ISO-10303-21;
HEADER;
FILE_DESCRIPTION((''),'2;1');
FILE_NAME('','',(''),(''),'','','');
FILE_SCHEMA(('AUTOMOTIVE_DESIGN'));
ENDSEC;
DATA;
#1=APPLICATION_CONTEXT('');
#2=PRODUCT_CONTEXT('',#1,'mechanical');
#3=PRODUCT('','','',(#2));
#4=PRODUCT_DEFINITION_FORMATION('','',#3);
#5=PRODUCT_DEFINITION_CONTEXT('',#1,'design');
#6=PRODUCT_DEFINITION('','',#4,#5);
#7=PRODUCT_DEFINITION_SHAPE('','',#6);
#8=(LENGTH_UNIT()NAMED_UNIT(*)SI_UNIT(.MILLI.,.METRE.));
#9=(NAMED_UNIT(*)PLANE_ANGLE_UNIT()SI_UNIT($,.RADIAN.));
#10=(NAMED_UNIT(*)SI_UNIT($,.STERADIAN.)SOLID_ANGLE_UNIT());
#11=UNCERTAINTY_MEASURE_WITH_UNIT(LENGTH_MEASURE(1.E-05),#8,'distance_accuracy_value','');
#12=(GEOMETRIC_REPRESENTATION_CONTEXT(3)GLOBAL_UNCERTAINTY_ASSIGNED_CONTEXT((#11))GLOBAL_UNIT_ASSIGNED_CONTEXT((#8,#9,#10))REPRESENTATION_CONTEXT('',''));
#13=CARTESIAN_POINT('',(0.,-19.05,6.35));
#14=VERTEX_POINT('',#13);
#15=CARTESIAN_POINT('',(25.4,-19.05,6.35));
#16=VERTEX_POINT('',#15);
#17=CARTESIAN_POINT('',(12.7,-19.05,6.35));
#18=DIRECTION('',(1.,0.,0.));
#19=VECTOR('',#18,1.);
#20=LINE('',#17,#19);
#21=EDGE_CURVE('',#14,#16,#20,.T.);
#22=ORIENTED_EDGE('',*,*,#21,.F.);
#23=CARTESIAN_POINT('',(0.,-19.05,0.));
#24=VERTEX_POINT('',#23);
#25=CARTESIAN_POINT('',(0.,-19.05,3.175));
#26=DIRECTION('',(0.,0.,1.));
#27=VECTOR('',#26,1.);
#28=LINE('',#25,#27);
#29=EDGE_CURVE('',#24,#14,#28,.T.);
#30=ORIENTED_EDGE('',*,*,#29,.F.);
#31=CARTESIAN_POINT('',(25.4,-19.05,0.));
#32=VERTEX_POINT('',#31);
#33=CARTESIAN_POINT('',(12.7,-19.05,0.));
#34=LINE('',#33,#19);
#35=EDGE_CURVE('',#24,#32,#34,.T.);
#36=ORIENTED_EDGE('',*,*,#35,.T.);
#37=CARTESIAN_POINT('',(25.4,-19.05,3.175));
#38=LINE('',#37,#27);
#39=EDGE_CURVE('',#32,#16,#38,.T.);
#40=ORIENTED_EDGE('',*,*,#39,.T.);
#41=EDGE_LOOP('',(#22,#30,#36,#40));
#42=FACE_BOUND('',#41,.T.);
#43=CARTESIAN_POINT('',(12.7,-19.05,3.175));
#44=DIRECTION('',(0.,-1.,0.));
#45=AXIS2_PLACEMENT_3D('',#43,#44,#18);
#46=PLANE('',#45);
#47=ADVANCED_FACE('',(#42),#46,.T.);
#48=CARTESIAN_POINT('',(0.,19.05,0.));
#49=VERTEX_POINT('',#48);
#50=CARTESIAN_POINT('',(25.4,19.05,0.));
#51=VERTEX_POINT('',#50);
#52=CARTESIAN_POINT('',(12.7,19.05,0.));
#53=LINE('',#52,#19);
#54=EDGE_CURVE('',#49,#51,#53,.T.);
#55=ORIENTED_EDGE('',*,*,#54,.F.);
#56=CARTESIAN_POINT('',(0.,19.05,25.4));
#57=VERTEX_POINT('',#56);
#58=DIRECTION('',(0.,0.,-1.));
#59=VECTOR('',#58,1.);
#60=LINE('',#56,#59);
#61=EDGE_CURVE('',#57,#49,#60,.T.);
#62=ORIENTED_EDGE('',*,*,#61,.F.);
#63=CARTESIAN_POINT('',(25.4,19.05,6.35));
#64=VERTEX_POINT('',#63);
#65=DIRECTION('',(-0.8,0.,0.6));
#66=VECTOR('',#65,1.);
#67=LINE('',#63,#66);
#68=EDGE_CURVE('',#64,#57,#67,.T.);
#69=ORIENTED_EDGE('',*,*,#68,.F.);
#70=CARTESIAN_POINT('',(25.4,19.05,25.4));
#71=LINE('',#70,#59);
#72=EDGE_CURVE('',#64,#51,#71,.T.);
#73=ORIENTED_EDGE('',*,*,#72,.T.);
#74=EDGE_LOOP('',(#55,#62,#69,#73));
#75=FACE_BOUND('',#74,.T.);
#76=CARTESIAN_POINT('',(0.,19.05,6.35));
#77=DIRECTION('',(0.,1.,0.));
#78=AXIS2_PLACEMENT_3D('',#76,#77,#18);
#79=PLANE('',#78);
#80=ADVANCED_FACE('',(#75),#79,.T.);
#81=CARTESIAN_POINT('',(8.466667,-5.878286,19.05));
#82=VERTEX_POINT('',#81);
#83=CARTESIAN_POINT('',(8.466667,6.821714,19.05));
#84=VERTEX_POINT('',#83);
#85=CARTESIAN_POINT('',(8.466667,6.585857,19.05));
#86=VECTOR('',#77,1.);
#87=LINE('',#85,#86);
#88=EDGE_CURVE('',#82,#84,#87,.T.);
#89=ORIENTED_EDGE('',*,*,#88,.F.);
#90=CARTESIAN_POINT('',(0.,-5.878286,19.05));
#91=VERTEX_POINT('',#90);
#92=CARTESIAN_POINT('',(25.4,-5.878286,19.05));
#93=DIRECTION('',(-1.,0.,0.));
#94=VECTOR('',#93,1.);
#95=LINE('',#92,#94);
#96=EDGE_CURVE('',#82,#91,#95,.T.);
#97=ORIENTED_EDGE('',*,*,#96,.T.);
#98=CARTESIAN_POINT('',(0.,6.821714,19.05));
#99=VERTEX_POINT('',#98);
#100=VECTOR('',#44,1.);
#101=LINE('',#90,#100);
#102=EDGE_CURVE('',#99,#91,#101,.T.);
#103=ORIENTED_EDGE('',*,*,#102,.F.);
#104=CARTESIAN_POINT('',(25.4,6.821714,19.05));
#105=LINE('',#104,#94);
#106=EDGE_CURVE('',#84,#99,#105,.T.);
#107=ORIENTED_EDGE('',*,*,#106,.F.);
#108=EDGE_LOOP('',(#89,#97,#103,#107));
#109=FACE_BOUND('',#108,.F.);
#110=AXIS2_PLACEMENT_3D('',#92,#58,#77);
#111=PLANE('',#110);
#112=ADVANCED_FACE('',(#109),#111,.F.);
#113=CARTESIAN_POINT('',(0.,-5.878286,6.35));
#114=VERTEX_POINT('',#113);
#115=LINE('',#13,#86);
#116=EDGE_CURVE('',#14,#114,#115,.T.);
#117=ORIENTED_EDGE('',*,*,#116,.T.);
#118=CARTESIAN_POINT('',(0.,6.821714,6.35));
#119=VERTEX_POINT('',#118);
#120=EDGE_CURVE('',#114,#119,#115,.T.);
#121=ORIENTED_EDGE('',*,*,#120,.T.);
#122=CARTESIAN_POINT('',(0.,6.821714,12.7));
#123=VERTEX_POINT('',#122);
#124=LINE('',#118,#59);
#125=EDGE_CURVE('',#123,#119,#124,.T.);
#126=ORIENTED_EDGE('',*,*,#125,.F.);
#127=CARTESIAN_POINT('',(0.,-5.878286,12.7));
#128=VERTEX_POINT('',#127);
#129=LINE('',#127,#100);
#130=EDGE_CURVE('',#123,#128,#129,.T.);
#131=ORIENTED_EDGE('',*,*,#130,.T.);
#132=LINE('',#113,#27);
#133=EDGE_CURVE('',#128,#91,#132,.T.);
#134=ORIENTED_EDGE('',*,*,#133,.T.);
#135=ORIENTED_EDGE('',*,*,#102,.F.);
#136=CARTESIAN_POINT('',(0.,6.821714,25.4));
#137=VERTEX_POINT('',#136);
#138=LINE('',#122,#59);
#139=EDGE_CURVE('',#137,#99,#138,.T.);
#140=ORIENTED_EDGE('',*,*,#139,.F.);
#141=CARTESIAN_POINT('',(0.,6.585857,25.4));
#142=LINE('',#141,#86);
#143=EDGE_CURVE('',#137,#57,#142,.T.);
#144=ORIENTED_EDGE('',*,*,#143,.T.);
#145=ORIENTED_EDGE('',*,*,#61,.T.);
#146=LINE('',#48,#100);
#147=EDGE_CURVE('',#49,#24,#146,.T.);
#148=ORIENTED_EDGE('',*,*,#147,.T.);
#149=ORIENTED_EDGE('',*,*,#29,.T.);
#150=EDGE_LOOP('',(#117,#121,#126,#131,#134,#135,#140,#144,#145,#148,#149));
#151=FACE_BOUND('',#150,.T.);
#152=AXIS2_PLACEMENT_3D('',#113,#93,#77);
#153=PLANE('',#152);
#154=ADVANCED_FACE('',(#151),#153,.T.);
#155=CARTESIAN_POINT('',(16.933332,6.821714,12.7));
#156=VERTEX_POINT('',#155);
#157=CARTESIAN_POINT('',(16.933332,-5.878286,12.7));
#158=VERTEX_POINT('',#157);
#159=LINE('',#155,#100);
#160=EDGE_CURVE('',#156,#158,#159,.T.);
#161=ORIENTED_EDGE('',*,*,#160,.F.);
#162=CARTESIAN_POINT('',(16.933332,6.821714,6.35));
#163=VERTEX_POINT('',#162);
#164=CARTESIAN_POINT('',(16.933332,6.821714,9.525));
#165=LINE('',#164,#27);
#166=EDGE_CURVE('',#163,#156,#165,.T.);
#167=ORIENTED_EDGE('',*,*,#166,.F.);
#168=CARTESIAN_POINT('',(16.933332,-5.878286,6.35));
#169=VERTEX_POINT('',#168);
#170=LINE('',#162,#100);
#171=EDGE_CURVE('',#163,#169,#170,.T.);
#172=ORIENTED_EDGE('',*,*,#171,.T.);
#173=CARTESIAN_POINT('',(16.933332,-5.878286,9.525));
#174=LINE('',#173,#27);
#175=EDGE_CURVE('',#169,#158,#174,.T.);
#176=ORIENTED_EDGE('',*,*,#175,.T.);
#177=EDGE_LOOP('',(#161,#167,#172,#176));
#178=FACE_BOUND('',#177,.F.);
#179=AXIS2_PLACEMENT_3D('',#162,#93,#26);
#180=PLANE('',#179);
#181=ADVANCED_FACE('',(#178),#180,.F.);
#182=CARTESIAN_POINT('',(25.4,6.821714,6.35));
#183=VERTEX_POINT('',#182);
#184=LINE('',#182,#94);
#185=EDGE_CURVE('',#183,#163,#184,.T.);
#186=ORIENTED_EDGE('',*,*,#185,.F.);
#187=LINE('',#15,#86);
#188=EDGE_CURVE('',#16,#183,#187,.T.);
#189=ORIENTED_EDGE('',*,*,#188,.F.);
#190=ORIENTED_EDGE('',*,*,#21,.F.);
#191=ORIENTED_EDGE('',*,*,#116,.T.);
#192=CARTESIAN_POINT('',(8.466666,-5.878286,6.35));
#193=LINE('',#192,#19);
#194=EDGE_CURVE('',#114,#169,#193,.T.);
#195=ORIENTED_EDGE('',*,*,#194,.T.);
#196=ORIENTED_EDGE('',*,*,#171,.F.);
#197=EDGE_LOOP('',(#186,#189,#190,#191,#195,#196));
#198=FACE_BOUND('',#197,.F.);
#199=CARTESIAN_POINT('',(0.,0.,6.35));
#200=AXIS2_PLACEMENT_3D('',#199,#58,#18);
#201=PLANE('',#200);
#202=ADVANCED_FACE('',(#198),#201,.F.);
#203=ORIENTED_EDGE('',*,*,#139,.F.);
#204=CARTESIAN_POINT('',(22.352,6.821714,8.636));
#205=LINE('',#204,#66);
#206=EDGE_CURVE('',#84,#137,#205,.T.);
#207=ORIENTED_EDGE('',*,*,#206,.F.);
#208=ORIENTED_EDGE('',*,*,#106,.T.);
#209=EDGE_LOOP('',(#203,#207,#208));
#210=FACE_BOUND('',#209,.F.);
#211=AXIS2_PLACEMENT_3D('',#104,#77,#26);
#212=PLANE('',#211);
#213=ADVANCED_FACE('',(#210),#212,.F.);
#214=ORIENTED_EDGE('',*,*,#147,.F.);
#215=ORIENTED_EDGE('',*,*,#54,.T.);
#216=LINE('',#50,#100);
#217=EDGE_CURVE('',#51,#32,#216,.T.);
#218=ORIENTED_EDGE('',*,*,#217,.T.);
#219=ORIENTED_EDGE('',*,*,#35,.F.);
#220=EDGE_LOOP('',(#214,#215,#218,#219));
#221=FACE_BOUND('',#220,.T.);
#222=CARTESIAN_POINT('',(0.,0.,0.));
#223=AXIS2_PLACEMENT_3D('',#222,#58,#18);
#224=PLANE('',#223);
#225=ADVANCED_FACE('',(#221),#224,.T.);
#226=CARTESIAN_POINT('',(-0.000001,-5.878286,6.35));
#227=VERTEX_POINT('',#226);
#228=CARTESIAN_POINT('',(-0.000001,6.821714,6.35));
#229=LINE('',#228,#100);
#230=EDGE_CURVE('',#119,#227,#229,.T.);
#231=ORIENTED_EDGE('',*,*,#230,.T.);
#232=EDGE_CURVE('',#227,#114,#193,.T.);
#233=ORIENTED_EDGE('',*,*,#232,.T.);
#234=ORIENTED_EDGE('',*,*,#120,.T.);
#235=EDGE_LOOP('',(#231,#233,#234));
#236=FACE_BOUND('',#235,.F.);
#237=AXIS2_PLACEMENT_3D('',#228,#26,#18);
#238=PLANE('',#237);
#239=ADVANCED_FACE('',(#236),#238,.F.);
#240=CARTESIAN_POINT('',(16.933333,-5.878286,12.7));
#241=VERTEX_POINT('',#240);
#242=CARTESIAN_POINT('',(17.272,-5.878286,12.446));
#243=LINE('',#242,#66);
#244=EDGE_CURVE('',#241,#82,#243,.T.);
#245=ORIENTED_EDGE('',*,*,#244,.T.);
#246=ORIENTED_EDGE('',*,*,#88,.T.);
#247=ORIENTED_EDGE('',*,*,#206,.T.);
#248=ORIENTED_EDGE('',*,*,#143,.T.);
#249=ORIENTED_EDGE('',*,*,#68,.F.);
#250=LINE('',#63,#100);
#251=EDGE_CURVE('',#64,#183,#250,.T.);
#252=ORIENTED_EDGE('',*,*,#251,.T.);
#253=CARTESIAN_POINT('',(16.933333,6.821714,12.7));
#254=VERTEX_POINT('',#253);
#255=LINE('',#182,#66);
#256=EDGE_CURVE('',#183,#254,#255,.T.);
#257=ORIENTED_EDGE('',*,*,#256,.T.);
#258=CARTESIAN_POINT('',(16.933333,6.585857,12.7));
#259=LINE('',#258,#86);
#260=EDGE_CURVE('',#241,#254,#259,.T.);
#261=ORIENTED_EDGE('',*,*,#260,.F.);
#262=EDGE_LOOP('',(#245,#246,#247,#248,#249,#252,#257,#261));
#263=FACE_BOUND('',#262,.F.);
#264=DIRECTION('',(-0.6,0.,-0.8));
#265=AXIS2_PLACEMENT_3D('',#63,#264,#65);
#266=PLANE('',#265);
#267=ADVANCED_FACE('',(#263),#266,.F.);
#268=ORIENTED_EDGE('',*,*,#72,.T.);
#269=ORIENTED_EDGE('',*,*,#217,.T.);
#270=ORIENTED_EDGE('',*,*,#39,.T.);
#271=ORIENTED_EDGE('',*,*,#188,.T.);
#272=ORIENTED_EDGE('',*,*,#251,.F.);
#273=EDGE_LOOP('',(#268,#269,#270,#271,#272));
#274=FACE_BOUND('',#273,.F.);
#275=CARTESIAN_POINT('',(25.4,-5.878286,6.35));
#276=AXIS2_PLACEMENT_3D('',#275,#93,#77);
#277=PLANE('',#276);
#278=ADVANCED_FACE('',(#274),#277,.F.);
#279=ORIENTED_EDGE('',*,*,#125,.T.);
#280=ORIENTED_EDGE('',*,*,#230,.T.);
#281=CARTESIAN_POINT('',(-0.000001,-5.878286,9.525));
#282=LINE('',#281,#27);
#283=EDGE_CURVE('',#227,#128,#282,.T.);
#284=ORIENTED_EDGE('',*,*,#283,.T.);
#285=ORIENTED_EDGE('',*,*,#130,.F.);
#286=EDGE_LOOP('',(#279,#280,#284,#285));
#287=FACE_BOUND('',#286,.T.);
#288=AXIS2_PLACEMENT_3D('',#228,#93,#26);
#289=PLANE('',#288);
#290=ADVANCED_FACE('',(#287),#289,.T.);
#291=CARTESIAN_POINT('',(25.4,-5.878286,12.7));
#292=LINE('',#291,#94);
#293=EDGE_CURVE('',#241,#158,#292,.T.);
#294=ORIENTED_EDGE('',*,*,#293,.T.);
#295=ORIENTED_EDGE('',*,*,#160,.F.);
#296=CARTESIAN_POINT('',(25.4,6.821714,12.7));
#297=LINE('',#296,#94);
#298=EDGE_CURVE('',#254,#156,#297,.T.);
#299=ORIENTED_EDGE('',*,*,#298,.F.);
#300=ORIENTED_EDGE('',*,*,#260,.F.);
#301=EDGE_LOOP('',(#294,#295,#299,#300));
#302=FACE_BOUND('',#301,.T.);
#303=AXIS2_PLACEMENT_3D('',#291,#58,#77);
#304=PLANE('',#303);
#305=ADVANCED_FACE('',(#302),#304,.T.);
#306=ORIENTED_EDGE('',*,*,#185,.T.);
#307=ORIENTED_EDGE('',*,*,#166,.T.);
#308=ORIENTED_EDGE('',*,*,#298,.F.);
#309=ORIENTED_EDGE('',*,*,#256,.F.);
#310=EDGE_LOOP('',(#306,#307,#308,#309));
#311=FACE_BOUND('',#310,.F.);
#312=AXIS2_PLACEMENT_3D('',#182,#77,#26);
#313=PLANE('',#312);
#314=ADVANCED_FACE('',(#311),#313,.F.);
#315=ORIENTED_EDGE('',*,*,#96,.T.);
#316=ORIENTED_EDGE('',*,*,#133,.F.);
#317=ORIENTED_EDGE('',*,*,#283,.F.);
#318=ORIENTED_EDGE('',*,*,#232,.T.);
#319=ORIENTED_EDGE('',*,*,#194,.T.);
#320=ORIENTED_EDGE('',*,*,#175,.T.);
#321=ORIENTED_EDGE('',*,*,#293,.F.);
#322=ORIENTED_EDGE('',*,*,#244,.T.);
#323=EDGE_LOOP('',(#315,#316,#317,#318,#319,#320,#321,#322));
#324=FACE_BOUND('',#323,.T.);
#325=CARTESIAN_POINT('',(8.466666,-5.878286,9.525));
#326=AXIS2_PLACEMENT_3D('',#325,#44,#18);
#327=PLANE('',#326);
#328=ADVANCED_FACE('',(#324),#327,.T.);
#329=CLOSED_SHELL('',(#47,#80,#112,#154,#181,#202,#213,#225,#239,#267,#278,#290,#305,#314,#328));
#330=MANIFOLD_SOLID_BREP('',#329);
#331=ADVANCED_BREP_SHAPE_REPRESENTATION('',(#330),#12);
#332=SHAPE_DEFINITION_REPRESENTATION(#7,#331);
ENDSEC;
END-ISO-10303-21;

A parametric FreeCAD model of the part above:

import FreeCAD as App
import Part
import Sketcher
Q = App.Units.Quantity

doc = App.newDocument("Part")
params = doc.addObject("Spreadsheet::Sheet", "Params")
for row, (alias, value) in enumerate([
    ("sketch1_width", "1 in"),
    ("sketch1_height", "0.25 in"),
    ("pad1_length", "1.5 in"),
    ("sketch2_width", "1 in"),
    ("pad2_length", "0.75 in"),
    ("sketch3_width", "0.5 in"),
    ("sketch3_height", "0.25 in"),
    ("sketch4_width", "1 in"),
    ("sketch4_height", "0.75 in"),
    ("sketch5_height", "0.25 in"),
    ("pad3_length", "0.5 in"),
], start=1):
    params.set(f"A{row}", alias)
    params.set(f"B{row}", "=" + value)
    params.setAlias(f"B{row}", alias)

body = doc.addObject("PartDesign::Body", "Body")

sketch1 = body.newObject("Sketcher::SketchObject", "Sketch")
sketch1.AttachmentSupport = (doc.getObject("XZ_Plane"), [""])
sketch1.MapMode = "FlatFace"
sketch1.addGeometry([
    Part.LineSegment(App.Vector(0, 6, 0), App.Vector(0, 0, 0)),
    Part.LineSegment(App.Vector(0, 0, 0), App.Vector(25, 0, 0)),
    Part.LineSegment(App.Vector(25, 0, 0), App.Vector(25, 6, 0)),
    Part.LineSegment(App.Vector(25, 6, 0), App.Vector(0, 6, 0)),
], False)
sketch1.addConstraint([
    Sketcher.Constraint("Coincident", 0, 2, 1, 1),
    Sketcher.Constraint("Coincident", 1, 2, 2, 1),
    Sketcher.Constraint("Coincident", 2, 2, 3, 1),
    Sketcher.Constraint("Coincident", 3, 2, 0, 1),
    Sketcher.Constraint("Vertical", 0),
    Sketcher.Constraint("Horizontal", 1),
    Sketcher.Constraint("Vertical", 2),
    Sketcher.Constraint("Horizontal", 3),
    Sketcher.Constraint("Coincident", 0, 2, -1, 1),
    Sketcher.Constraint("DistanceX", 1, 1, 1, 2, Q("1 in")),
    Sketcher.Constraint("DistanceY", 0, 2, 0, 1, Q("0.25 in")),
])
sketch1.setExpression("Constraints[9]", "Params.sketch1_width")
sketch1.setExpression("Constraints[10]", "Params.sketch1_height")
pad1 = body.newObject("PartDesign::Pad", "Pad")
pad1.Profile = sketch1
pad1.setExpression("Length", "Params.pad1_length")
pad1.Midplane = True

sketch2 = body.newObject("Sketcher::SketchObject", "Sketch001")
sketch2.AttachmentSupport = (doc.getObject("XY_Plane"), [""])
sketch2.MapMode = "FlatFace"
sketch2.AttachmentOffset = App.Placement(App.Vector(0, 0, 0.25 * 25.4), App.Rotation())
sketch2.addGeometry([
    Part.LineSegment(App.Vector(0, 19, 0), App.Vector(0, -6, 0)),
    Part.LineSegment(App.Vector(0, -6, 0), App.Vector(25, -6, 0)),
    Part.LineSegment(App.Vector(25, -6, 0), App.Vector(25, 19, 0)),
    Part.LineSegment(App.Vector(25, 19, 0), App.Vector(0, 19, 0)),
], False)
sketch2.addConstraint([
    Sketcher.Constraint("Coincident", 0, 2, 1, 1),
    Sketcher.Constraint("Coincident", 1, 2, 2, 1),
    Sketcher.Constraint("Coincident", 2, 2, 3, 1),
    Sketcher.Constraint("Coincident", 3, 2, 0, 1),
    Sketcher.Constraint("Vertical", 0),
    Sketcher.Constraint("Horizontal", 1),
    Sketcher.Constraint("Vertical", 2),
    Sketcher.Constraint("Horizontal", 3),
    Sketcher.Constraint("PointOnObject", 0, 2, -2),
    Sketcher.Constraint("DistanceX", 1, 1, 1, 2, Q("1 in")),
    Sketcher.Constraint("DistanceY", -1, 1, 2, 2, Q("0.75 in")),
    Sketcher.Constraint("DistanceY", 0, 2, 0, 1, 24.928286),
])
sketch2.setExpression("Constraints[9]", "Params.sketch2_width")
pad2 = body.newObject("PartDesign::Pad", "Pad001")
pad2.Profile = sketch2
pad2.setExpression("Length", "Params.pad2_length")

sketch3 = body.newObject("Sketcher::SketchObject", "Sketch002")
sketch3.AttachmentSupport = (doc.getObject("YZ_Plane"), [""])
sketch3.MapMode = "FlatFace"
sketch3.AttachmentOffset = App.Placement(App.Vector(0, 0, 1 * 25.4), App.Rotation())
sketch3.addGeometry([
    Part.LineSegment(App.Vector(-6, 25, 0), App.Vector(-6, 19, 0)),
    Part.LineSegment(App.Vector(-6, 19, 0), App.Vector(7, 19, 0)),
    Part.LineSegment(App.Vector(7, 19, 0), App.Vector(7, 25, 0)),
    Part.LineSegment(App.Vector(7, 25, 0), App.Vector(-6, 25, 0)),
    Part.LineSegment(App.Vector(-6, 13, 0), App.Vector(-6, 6, 0)),
    Part.LineSegment(App.Vector(-6, 6, 0), App.Vector(7, 6, 0)),
    Part.LineSegment(App.Vector(7, 6, 0), App.Vector(7, 13, 0)),
    Part.LineSegment(App.Vector(7, 13, 0), App.Vector(-6, 13, 0)),
], False)
sketch3.addConstraint([
    Sketcher.Constraint("Coincident", 0, 2, 1, 1),
    Sketcher.Constraint("Coincident", 1, 2, 2, 1),
    Sketcher.Constraint("Coincident", 2, 2, 3, 1),
    Sketcher.Constraint("Coincident", 3, 2, 0, 1),
    Sketcher.Constraint("Coincident", 4, 2, 5, 1),
    Sketcher.Constraint("Coincident", 5, 2, 6, 1),
    Sketcher.Constraint("Coincident", 6, 2, 7, 1),
    Sketcher.Constraint("Coincident", 7, 2, 4, 1),
    Sketcher.Constraint("Vertical", 0),
    Sketcher.Constraint("Horizontal", 1),
    Sketcher.Constraint("Vertical", 2),
    Sketcher.Constraint("Horizontal", 3),
    Sketcher.Constraint("Vertical", 4),
    Sketcher.Constraint("Horizontal", 5),
    Sketcher.Constraint("Vertical", 6),
    Sketcher.Constraint("Horizontal", 7),
    Sketcher.Constraint("Vertical", 3, 2, 4, 2),
    Sketcher.Constraint("Vertical", 2, 2, 5, 2),
    Sketcher.Constraint("Equal", 2, 4),
    Sketcher.Constraint("DistanceX", 1, 1, 1, 2, Q("0.5 in")),
    Sketcher.Constraint("DistanceY", -1, 1, 2, 2, Q("1 in")),
    Sketcher.Constraint("DistanceY", 0, 2, 0, 1, Q("0.25 in")),
    Sketcher.Constraint("DistanceY", -1, 1, 6, 2, Q("0.5 in")),
    Sketcher.Constraint("DistanceX", 0, 2, -1, 1, 5.878286),
])
sketch3.setExpression("Constraints[19]", "Params.sketch3_width")
sketch3.setExpression("Constraints[21]", "Params.sketch3_height")
pocket1 = body.newObject("PartDesign::Pocket", "Pocket")
pocket1.Profile = sketch3
pocket1.Type = "ThroughAll"

sketch4 = body.newObject("Sketcher::SketchObject", "Sketch003")
sketch4.AttachmentSupport = (doc.getObject("XZ_Plane"), [""])
sketch4.MapMode = "FlatFace"
sketch4.AttachmentOffset = App.Placement(App.Vector(0, 0, -0.75 * 25.4), App.Rotation())
sketch4.addGeometry([
    Part.LineSegment(App.Vector(0, 25, 0), App.Vector(25, 25, 0)),
    Part.LineSegment(App.Vector(25, 25, 0), App.Vector(25, 6, 0)),
    Part.LineSegment(App.Vector(25, 6, 0), App.Vector(0, 25, 0)),
], False)
sketch4.addConstraint([
    Sketcher.Constraint("Coincident", 0, 2, 1, 1),
    Sketcher.Constraint("Coincident", 1, 2, 2, 1),
    Sketcher.Constraint("Coincident", 2, 2, 0, 1),
    Sketcher.Constraint("Horizontal", 0),
    Sketcher.Constraint("Vertical", 1),
    Sketcher.Constraint("PointOnObject", 2, 2, -2),
    Sketcher.Constraint("DistanceX", 0, 1, 0, 2, Q("1 in")),
    Sketcher.Constraint("DistanceY", -1, 1, 0, 2, Q("1 in")),
    Sketcher.Constraint("DistanceY", 1, 2, 1, 1, Q("0.75 in")),
])
sketch4.setExpression("Constraints[6]", "Params.sketch4_width")
sketch4.setExpression("Constraints[8]", "Params.sketch4_height")
pocket2 = body.newObject("PartDesign::Pocket", "Pocket001")
pocket2.Profile = sketch4
pocket2.Type = "ThroughAll"
pocket2.Reversed = True

sketch5 = body.newObject("Sketcher::SketchObject", "Sketch004")
sketch5.AttachmentSupport = (doc.getObject("XZ_Plane"), [""])
sketch5.MapMode = "FlatFace"
sketch5.AttachmentOffset = App.Placement(App.Vector(0, 0, -6.821714), App.Rotation())
sketch5.addGeometry([
    Part.LineSegment(App.Vector(0, 13, 0), App.Vector(0, 6, 0)),
    Part.LineSegment(App.Vector(0, 6, 0), App.Vector(17, 6, 0)),
    Part.LineSegment(App.Vector(17, 6, 0), App.Vector(17, 13, 0)),
    Part.LineSegment(App.Vector(17, 13, 0), App.Vector(0, 13, 0)),
], False)
sketch5.addConstraint([
    Sketcher.Constraint("Coincident", 0, 2, 1, 1),
    Sketcher.Constraint("Coincident", 1, 2, 2, 1),
    Sketcher.Constraint("Coincident", 2, 2, 3, 1),
    Sketcher.Constraint("Coincident", 3, 2, 0, 1),
    Sketcher.Constraint("Vertical", 0),
    Sketcher.Constraint("Horizontal", 1),
    Sketcher.Constraint("Vertical", 2),
    Sketcher.Constraint("Horizontal", 3),
    Sketcher.Constraint("PointOnObject", 0, 2, -2),
    Sketcher.Constraint("DistanceY", 0, 2, 0, 1, Q("0.25 in")),
    Sketcher.Constraint("DistanceY", -1, 1, 2, 2, Q("0.5 in")),
    Sketcher.Constraint("DistanceX", 1, 1, 1, 2, 16.933333),
])
sketch5.setExpression("Constraints[9]", "Params.sketch5_height")
pad3 = body.newObject("PartDesign::Pad", "Pad002")
pad3.Profile = sketch5
pad3.setExpression("Length", "Params.pad3_length")

doc.recompute()
